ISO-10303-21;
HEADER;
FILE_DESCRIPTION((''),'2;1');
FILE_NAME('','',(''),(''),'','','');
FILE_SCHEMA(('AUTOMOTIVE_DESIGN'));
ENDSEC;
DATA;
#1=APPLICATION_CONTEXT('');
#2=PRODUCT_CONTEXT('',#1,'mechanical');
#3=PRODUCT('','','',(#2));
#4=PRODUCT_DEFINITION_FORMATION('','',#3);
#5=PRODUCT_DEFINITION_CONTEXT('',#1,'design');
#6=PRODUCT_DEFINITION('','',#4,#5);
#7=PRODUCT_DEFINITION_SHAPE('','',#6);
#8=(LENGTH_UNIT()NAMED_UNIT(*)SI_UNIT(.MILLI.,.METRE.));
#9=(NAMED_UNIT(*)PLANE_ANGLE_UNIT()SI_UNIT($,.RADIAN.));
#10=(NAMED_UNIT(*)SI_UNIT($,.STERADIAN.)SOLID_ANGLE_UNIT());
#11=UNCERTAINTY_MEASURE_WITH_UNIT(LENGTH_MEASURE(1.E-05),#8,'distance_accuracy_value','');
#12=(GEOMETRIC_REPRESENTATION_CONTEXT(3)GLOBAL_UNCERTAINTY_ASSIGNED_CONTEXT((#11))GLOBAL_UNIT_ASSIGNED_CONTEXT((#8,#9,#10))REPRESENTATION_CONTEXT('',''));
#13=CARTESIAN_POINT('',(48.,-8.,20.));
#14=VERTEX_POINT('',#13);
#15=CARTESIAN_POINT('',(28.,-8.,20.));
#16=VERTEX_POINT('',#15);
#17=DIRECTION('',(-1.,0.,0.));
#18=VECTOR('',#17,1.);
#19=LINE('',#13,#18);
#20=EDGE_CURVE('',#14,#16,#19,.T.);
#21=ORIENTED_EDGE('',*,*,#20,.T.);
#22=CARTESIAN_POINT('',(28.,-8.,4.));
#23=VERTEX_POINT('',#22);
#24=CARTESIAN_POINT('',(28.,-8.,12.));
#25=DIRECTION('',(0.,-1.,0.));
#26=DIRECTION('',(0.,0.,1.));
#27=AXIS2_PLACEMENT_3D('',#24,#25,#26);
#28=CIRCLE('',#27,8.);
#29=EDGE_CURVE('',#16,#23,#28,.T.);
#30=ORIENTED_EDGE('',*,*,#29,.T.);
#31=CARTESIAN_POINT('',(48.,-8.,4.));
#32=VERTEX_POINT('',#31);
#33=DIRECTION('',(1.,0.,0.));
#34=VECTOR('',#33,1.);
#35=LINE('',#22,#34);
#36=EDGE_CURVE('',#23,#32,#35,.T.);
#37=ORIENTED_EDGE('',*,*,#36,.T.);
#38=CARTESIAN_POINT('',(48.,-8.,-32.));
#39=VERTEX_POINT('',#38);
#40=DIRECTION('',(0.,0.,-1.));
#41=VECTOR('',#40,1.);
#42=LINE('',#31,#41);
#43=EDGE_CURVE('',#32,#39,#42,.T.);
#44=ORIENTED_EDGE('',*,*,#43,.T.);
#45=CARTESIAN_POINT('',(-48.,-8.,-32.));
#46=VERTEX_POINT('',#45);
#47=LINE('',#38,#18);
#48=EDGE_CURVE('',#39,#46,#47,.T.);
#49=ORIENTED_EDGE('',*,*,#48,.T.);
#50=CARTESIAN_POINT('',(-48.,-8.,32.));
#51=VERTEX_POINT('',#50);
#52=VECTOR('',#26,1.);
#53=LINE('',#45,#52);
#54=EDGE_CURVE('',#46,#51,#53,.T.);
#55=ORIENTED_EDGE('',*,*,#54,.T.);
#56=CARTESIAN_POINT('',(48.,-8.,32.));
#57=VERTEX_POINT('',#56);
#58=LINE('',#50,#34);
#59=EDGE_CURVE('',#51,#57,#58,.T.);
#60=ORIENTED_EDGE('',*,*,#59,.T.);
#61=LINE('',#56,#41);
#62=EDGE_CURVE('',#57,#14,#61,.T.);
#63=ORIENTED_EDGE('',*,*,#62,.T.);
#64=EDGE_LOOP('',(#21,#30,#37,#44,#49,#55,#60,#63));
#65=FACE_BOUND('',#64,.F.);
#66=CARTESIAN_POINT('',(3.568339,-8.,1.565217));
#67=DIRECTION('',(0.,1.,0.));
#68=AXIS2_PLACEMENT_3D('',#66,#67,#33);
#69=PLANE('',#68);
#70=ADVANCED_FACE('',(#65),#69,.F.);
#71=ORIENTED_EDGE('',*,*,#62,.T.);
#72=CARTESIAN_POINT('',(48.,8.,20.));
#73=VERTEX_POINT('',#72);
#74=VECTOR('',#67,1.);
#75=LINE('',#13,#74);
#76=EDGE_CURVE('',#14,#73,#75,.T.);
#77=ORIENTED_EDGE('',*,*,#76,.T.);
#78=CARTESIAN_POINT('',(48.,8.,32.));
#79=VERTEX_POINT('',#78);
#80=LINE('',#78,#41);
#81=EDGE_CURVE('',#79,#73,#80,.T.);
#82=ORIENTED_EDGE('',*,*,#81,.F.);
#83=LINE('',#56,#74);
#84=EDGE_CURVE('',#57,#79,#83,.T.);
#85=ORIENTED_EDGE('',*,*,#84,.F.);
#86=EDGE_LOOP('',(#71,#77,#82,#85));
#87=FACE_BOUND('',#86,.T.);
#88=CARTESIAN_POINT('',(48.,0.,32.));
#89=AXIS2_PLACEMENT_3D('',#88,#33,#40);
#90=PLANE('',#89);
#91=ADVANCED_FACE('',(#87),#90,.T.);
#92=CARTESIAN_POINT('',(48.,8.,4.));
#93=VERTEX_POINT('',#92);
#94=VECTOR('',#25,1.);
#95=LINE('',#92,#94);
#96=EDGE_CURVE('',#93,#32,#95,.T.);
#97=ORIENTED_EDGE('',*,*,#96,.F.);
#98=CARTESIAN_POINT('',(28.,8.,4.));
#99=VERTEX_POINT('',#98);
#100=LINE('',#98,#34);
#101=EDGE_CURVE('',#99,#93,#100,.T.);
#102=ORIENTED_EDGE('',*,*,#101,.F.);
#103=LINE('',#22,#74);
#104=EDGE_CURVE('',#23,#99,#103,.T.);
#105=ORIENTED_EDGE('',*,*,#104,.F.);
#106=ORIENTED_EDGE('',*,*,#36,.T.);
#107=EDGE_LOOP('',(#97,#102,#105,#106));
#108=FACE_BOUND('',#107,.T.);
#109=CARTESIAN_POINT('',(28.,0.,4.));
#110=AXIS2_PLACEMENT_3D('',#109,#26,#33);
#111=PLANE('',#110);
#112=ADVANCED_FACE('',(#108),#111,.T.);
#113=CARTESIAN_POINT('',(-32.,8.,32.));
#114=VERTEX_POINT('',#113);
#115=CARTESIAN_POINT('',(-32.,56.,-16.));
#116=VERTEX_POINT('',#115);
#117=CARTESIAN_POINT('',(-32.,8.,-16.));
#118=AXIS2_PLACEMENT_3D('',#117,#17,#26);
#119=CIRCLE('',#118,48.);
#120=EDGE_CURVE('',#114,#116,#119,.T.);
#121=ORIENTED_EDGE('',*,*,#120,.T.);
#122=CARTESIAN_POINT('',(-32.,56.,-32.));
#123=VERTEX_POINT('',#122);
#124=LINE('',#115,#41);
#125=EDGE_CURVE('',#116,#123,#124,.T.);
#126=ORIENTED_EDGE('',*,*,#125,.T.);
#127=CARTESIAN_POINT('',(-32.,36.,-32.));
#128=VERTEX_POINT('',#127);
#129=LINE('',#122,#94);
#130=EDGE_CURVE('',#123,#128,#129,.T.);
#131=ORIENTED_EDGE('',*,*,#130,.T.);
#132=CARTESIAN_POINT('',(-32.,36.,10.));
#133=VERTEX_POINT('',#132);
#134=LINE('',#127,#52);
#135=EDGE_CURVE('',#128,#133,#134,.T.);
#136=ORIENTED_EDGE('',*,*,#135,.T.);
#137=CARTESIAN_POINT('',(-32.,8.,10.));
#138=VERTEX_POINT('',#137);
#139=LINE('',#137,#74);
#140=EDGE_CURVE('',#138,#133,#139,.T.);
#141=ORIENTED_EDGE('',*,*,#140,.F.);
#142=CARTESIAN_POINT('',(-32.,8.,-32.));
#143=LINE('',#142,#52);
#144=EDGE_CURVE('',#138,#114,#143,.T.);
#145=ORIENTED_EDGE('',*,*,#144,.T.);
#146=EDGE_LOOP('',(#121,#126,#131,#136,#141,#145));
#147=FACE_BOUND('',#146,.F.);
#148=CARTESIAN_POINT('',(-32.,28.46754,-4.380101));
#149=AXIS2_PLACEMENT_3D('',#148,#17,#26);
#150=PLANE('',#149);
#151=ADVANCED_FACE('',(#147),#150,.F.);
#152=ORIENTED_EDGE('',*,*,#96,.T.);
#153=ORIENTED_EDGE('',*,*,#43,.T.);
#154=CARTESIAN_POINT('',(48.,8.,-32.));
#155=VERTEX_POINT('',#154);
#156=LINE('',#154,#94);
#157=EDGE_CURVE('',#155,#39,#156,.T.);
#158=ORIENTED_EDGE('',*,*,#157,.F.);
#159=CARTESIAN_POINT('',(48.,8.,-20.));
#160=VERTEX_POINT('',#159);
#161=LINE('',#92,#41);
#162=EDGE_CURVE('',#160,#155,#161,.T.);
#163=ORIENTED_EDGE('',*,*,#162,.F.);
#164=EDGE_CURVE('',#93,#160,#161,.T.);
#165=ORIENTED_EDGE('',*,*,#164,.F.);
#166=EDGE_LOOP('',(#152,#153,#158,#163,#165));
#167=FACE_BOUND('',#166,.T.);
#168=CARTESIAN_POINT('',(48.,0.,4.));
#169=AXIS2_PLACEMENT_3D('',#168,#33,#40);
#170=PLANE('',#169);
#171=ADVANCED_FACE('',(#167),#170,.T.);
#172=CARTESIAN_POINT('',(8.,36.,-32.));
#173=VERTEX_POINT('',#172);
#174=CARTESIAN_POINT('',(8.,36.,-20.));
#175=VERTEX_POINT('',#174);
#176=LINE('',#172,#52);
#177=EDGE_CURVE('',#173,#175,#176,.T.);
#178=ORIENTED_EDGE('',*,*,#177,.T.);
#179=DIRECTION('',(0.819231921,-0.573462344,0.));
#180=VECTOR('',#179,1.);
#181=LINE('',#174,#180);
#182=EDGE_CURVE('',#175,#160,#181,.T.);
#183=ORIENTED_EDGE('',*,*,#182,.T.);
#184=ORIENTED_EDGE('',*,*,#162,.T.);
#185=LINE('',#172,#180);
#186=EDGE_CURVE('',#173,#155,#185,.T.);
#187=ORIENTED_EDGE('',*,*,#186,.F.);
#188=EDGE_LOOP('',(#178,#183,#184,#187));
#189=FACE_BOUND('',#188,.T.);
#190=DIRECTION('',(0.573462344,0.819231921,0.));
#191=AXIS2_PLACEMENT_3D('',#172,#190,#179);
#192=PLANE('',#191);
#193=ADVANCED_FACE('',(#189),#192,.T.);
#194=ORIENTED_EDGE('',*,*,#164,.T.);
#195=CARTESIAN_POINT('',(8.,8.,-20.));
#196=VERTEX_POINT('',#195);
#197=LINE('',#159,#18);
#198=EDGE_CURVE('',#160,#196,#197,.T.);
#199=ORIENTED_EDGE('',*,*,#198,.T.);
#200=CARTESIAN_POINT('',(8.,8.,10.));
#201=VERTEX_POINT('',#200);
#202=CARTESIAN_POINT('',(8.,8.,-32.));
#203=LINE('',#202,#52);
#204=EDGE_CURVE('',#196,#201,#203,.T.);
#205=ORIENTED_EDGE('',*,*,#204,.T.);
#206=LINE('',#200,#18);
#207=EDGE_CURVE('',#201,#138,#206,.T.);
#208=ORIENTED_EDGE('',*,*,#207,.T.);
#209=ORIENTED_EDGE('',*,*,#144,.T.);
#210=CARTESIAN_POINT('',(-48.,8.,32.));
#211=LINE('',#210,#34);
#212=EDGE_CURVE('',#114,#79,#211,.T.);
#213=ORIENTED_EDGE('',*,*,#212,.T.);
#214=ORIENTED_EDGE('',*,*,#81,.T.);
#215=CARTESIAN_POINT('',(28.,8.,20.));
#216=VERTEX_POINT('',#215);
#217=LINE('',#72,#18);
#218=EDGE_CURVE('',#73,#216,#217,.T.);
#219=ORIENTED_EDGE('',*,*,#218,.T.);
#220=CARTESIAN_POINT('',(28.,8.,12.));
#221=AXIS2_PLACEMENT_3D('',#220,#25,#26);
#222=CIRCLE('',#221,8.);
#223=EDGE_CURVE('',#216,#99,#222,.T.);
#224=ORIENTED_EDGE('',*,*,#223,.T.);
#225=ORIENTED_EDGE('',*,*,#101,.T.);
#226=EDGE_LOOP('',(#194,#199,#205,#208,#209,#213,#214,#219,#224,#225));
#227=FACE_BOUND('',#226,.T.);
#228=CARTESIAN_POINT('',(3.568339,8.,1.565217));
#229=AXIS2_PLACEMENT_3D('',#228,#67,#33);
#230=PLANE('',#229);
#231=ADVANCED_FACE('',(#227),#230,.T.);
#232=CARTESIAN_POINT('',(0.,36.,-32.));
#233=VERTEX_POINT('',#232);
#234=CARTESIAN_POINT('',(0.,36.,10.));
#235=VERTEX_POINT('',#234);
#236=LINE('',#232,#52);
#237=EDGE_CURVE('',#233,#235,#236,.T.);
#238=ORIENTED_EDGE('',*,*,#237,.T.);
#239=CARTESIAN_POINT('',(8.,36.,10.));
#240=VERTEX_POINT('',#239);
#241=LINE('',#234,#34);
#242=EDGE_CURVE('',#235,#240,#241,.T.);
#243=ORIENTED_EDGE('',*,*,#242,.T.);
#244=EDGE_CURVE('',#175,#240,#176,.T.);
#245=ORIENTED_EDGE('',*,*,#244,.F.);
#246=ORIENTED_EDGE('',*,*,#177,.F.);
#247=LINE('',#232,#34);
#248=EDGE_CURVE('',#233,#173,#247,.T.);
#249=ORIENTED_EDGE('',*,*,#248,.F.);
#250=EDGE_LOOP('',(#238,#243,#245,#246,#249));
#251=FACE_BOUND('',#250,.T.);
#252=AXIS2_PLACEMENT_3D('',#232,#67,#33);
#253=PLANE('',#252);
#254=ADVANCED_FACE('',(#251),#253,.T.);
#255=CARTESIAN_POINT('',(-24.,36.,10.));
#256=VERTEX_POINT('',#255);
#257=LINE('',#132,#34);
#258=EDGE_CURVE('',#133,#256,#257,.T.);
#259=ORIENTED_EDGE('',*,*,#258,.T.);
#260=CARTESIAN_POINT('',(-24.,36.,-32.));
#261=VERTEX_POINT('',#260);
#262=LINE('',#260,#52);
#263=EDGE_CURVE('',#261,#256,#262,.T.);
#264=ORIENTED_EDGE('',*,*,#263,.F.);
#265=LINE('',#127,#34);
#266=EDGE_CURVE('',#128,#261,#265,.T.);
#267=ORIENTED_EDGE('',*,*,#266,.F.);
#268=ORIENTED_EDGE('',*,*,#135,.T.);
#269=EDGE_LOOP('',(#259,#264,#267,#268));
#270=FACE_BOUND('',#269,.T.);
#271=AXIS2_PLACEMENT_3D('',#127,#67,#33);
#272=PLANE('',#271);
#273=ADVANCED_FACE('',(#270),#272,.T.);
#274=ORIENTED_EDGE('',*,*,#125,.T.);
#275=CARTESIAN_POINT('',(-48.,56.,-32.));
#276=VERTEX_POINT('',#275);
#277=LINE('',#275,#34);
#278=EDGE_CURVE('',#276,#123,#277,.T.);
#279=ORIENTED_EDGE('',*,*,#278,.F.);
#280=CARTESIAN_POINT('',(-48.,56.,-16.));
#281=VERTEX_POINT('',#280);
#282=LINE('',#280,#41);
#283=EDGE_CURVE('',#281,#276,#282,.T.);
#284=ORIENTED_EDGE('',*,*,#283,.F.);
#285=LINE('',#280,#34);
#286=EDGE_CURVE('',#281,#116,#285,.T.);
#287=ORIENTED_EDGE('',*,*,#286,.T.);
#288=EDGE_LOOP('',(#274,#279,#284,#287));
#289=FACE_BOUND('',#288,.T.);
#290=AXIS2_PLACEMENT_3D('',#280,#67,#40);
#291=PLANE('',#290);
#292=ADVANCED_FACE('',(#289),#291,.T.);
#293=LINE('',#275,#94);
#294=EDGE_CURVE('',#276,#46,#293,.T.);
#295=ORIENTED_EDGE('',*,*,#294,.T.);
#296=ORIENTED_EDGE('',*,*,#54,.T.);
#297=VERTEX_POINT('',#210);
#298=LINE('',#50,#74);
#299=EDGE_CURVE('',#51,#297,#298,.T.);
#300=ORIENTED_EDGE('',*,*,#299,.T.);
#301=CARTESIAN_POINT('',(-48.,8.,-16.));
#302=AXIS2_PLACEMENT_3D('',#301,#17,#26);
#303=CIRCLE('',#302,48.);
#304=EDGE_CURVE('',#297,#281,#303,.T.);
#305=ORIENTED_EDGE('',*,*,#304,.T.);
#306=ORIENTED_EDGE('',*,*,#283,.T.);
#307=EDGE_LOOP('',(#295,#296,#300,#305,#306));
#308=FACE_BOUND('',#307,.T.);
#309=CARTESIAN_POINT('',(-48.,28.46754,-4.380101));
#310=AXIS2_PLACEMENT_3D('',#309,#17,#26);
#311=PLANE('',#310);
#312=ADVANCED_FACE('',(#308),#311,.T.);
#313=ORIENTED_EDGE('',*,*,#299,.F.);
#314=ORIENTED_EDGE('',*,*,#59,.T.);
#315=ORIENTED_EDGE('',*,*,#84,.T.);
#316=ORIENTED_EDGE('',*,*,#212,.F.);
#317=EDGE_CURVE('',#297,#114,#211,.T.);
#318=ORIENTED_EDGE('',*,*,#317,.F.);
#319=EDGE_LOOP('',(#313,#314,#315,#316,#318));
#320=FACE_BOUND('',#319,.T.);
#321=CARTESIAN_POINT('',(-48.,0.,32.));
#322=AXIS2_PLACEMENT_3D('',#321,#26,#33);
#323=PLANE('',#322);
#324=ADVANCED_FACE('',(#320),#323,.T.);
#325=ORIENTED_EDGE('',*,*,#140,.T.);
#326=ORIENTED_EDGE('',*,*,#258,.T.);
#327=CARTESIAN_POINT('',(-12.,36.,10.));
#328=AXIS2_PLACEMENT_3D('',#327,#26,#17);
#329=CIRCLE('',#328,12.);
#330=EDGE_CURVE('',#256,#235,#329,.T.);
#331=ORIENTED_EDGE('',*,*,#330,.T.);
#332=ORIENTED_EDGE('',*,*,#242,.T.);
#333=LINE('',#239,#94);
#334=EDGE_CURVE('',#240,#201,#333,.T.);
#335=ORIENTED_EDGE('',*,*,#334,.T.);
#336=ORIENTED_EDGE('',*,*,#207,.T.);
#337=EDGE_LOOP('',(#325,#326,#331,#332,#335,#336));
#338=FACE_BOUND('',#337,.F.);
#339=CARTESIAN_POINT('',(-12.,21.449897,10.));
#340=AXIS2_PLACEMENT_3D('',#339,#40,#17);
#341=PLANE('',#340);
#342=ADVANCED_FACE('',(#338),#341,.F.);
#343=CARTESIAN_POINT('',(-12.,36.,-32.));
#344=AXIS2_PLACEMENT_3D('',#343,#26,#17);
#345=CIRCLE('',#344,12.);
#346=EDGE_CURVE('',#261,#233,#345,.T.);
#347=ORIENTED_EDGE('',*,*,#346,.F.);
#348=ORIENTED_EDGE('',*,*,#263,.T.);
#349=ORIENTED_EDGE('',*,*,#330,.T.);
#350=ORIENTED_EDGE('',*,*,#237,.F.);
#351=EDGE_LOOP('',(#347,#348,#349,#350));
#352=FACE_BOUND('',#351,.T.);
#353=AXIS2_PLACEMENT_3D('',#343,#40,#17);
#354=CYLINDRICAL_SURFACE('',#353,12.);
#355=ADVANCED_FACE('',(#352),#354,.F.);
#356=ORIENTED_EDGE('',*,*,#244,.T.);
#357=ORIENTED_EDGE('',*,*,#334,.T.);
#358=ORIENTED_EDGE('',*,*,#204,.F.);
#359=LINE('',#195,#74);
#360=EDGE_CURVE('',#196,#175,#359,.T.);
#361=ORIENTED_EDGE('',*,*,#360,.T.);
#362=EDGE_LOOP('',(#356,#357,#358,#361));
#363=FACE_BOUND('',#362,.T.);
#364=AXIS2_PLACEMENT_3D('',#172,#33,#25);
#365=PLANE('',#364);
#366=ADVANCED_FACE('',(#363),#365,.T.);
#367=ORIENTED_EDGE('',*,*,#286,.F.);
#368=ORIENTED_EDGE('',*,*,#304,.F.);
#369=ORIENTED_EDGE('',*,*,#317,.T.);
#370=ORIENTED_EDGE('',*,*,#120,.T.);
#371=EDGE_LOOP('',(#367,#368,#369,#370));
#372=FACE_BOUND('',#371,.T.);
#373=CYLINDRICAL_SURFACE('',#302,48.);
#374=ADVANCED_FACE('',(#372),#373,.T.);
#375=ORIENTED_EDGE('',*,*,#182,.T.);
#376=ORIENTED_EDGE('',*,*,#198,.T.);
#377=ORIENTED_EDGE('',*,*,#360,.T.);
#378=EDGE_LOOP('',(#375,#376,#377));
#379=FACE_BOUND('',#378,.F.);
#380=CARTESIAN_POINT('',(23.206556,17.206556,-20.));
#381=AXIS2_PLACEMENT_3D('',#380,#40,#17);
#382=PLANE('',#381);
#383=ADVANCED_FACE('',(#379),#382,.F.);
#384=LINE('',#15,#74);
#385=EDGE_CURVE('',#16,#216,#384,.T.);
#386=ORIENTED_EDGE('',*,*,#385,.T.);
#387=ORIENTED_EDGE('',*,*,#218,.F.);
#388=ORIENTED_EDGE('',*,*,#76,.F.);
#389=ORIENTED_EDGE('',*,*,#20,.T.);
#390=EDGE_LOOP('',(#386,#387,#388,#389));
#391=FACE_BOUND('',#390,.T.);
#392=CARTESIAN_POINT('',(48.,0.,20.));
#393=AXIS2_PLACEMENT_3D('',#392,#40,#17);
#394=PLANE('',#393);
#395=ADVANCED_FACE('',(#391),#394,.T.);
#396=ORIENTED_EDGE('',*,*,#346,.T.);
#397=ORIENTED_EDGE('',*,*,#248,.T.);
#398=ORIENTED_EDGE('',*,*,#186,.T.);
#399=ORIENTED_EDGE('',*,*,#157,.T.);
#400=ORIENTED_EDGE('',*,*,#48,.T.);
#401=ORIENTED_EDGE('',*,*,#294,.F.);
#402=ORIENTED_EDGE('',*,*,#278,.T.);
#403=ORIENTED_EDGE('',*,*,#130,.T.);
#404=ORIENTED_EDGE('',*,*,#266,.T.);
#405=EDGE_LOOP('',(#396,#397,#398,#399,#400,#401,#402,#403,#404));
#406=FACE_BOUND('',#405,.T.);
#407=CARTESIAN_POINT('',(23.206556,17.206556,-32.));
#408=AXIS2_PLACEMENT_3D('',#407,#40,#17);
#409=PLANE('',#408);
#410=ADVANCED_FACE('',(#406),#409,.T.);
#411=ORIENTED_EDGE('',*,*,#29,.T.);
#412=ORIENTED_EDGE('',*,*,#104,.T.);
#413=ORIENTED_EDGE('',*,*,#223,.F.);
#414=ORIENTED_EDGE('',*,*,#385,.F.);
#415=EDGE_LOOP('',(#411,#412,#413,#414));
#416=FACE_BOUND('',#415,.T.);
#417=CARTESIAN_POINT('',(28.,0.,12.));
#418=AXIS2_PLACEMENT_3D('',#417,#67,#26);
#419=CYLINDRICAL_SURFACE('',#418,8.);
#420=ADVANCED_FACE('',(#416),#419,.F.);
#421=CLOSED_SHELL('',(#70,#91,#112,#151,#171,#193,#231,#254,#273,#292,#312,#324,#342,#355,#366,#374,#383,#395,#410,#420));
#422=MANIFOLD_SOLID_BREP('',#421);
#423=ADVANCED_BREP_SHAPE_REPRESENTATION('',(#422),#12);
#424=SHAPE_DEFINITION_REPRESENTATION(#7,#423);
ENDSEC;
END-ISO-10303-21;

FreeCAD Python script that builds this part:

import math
import FreeCAD as App
import Part
import Sketcher


def add_polygon(sketch, points):
    """Adds a closed chain of lines whose ends are joined by coincident constraints."""
    first, n = sketch.GeometryCount, len(points)
    for a, b in zip(points, points[1:] + points[:1]):
        sketch.addGeometry(Part.LineSegment(App.Vector(*a, 0), App.Vector(*b, 0)), False)
    for i in range(n):
        sketch.addConstraint(Sketcher.Constraint("Coincident", first + i, 2, first + (i + 1) % n, 1))

doc = App.newDocument("Part")
body = doc.addObject("PartDesign::Body", "Body")

sketch1 = body.newObject("Sketcher::SketchObject", "Sketch")
sketch1.AttachmentSupport = (doc.getObject("XZ_Plane"), [""])
sketch1.MapMode = "FlatFace"
sketch1.addGeometry([
    Part.LineSegment(App.Vector(-48, -32, 0), App.Vector(-48, 32, 0)),
    Part.LineSegment(App.Vector(-48, 32, 0), App.Vector(48, 32, 0)),
    Part.LineSegment(App.Vector(48, 32, 0), App.Vector(48, 20, 0)),
    Part.LineSegment(App.Vector(48, 20, 0), App.Vector(28, 20, 0)),
    Part.ArcOfCircle(Part.Circle(App.Vector(28, 12, 0), App.Vector(0, 0, 1), 8), math.radians(90), math.radians(270)),
    Part.LineSegment(App.Vector(28, 4, 0), App.Vector(48, 4, 0)),
    Part.LineSegment(App.Vector(48, 4, 0), App.Vector(48, -32, 0)),
    Part.LineSegment(App.Vector(48, -32, 0), App.Vector(-48, -32, 0)),
], False)
sketch1.addConstraint([
    Sketcher.Constraint("Coincident", 0, 2, 1, 1),
    Sketcher.Constraint("Coincident", 1, 2, 2, 1),
    Sketcher.Constraint("Coincident", 2, 2, 3, 1),
    Sketcher.Constraint("Tangent", 3, 2, 4, 1),
    Sketcher.Constraint("Tangent", 4, 2, 5, 1),
    Sketcher.Constraint("Coincident", 5, 2, 6, 1),
    Sketcher.Constraint("Coincident", 6, 2, 7, 1),
    Sketcher.Constraint("Coincident", 7, 2, 0, 1),
    Sketcher.Constraint("Vertical", 0),
    Sketcher.Constraint("Horizontal", 1),
    Sketcher.Constraint("Vertical", 2),
    Sketcher.Constraint("Horizontal", 3),
    Sketcher.Constraint("Horizontal", 5),
    Sketcher.Constraint("Vertical", 6),
    Sketcher.Constraint("Horizontal", 7),
    Sketcher.Constraint("Symmetric", 0, 2, 6, 2, -1, 1),
    Sketcher.Constraint("Vertical", 2, 2, 5, 2),
    Sketcher.Constraint("Radius", 4, 8.0),
    Sketcher.Constraint("DistanceX", 1, 1, 1, 2, 96.0),
    Sketcher.Constraint("DistanceX", 3, 2, 3, 1, 20.0),
    Sketcher.Constraint("DistanceY", 0, 1, 0, 2, 64.0),
    Sketcher.Constraint("DistanceY", 2, 2, 2, 1, 12.0),
])
pad1 = body.newObject("PartDesign::Pad", "Pad")
pad1.Profile = sketch1
pad1.Length = 16
pad1.Midplane = True

sketch2 = body.newObject("Sketcher::SketchObject", "Sketch001")
sketch2.AttachmentSupport = (doc.getObject("YZ_Plane"), [""])
sketch2.MapMode = "FlatFace"
sketch2.AttachmentOffset = App.Placement(App.Vector(0, 0, -48), App.Rotation())
sketch2.addGeometry([
    Part.ArcOfCircle(Part.Circle(App.Vector(8, -16, 0), App.Vector(0, 0, 1), 48), math.radians(0), math.radians(90)),
    Part.LineSegment(App.Vector(56, -16, 0), App.Vector(56, -32, 0)),
    Part.LineSegment(App.Vector(56, -32, 0), App.Vector(8, -32, 0)),
    Part.LineSegment(App.Vector(8, -32, 0), App.Vector(8, 32, 0)),
], False)
sketch2.addConstraint([
    Sketcher.Constraint("Tangent", 0, 1, 1, 1),
    Sketcher.Constraint("Coincident", 1, 2, 2, 1),
    Sketcher.Constraint("Coincident", 2, 2, 3, 1),
    Sketcher.Constraint("Coincident", 3, 2, 0, 2),
    Sketcher.Constraint("Vertical", 1),
    Sketcher.Constraint("Horizontal", 2),
    Sketcher.Constraint("Vertical", 3),
    Sketcher.Constraint("Vertical", 0, 3, 2, 2),
    Sketcher.Constraint("Radius", 0, 48.0),
    Sketcher.Constraint("DistanceY", 1, 2, 1, 1, 16.0),
    Sketcher.Constraint("DistanceX", -1, 1, 0, 3, 8.0),
    Sketcher.Constraint("DistanceY", 0, 3, -1, 1, 16.0),
])
pad2 = body.newObject("PartDesign::Pad", "Pad001")
pad2.Profile = sketch2
pad2.Length = 16

sketch3 = body.newObject("Sketcher::SketchObject", "Sketch002")
sketch3.AttachmentSupport = (doc.getObject("XY_Plane"), [""])
sketch3.MapMode = "FlatFace"
sketch3.AttachmentOffset = App.Placement(App.Vector(0, 0, -32), App.Rotation())
sketch3.addGeometry([
    Part.ArcOfCircle(Part.Circle(App.Vector(-12, 36, 0), App.Vector(0, 0, 1), 12), math.radians(180), math.radians(360)),
    Part.LineSegment(App.Vector(0, 36, 0), App.Vector(8, 36, 0)),
    Part.LineSegment(App.Vector(8, 36, 0), App.Vector(8, 8, 0)),
    Part.LineSegment(App.Vector(8, 8, 0), App.Vector(-32, 8, 0)),
    Part.LineSegment(App.Vector(-32, 8, 0), App.Vector(-32, 36, 0)),
    Part.LineSegment(App.Vector(-32, 36, 0), App.Vector(-24, 36, 0)),
], False)
sketch3.addConstraint([
    Sketcher.Constraint("Coincident", 0, 2, 1, 1),
    Sketcher.Constraint("Coincident", 1, 2, 2, 1),
    Sketcher.Constraint("Coincident", 2, 2, 3, 1),
    Sketcher.Constraint("Coincident", 3, 2, 4, 1),
    Sketcher.Constraint("Coincident", 4, 2, 5, 1),
    Sketcher.Constraint("Coincident", 5, 2, 0, 1),
    Sketcher.Constraint("Horizontal", 1),
    Sketcher.Constraint("Vertical", 2),
    Sketcher.Constraint("Horizontal", 3),
    Sketcher.Constraint("Vertical", 4),
    Sketcher.Constraint("Horizontal", 5),
    Sketcher.Constraint("PointOnObject", 0, 2, -2),
    Sketcher.Constraint("Horizontal", 1, 2, 4, 2),
    Sketcher.Constraint("Equal", 1, 5),
    Sketcher.Constraint("Radius", 0, 12.0),
    Sketcher.Constraint("DistanceX", 1, 1, 1, 2, 8.0),
    Sketcher.Constraint("DistanceY", 2, 2, 2, 1, 28.0),
    Sketcher.Constraint("DistanceY", -1, 1, 0, 3, 36.0),
    Sketcher.Constraint("DistanceY", -1, 1, 0, 2, 36.0),
])
pad3 = body.newObject("PartDesign::Pad", "Pad002")
pad3.Profile = sketch3
pad3.Length = 42

sketch4 = body.newObject("Sketcher::SketchObject", "Sketch003")
sketch4.AttachmentSupport = (doc.getObject("XY_Plane"), [""])
sketch4.MapMode = "FlatFace"
sketch4.AttachmentOffset = App.Placement(App.Vector(0, 0, -32), App.Rotation())
add_polygon(sketch4, [(8, 36), (48, 8), (8, 8)])
sketch4.addConstraint([
    Sketcher.Constraint("Horizontal", 1),
    Sketcher.Constraint("Vertical", 2),
    Sketcher.Constraint("DistanceX", 1, 2, 1, 1, 40.0),
    Sketcher.Constraint("DistanceY", 2, 1, 2, 2, 28.0),
    Sketcher.Constraint("DistanceX", -1, 1, 0, 2, 48.0),
    Sketcher.Constraint("DistanceY", -1, 1, 0, 2, 8.0),
])
pad4 = body.newObject("PartDesign::Pad", "Pad003")
pad4.Profile = sketch4
pad4.Length = 12

doc.recompute()
